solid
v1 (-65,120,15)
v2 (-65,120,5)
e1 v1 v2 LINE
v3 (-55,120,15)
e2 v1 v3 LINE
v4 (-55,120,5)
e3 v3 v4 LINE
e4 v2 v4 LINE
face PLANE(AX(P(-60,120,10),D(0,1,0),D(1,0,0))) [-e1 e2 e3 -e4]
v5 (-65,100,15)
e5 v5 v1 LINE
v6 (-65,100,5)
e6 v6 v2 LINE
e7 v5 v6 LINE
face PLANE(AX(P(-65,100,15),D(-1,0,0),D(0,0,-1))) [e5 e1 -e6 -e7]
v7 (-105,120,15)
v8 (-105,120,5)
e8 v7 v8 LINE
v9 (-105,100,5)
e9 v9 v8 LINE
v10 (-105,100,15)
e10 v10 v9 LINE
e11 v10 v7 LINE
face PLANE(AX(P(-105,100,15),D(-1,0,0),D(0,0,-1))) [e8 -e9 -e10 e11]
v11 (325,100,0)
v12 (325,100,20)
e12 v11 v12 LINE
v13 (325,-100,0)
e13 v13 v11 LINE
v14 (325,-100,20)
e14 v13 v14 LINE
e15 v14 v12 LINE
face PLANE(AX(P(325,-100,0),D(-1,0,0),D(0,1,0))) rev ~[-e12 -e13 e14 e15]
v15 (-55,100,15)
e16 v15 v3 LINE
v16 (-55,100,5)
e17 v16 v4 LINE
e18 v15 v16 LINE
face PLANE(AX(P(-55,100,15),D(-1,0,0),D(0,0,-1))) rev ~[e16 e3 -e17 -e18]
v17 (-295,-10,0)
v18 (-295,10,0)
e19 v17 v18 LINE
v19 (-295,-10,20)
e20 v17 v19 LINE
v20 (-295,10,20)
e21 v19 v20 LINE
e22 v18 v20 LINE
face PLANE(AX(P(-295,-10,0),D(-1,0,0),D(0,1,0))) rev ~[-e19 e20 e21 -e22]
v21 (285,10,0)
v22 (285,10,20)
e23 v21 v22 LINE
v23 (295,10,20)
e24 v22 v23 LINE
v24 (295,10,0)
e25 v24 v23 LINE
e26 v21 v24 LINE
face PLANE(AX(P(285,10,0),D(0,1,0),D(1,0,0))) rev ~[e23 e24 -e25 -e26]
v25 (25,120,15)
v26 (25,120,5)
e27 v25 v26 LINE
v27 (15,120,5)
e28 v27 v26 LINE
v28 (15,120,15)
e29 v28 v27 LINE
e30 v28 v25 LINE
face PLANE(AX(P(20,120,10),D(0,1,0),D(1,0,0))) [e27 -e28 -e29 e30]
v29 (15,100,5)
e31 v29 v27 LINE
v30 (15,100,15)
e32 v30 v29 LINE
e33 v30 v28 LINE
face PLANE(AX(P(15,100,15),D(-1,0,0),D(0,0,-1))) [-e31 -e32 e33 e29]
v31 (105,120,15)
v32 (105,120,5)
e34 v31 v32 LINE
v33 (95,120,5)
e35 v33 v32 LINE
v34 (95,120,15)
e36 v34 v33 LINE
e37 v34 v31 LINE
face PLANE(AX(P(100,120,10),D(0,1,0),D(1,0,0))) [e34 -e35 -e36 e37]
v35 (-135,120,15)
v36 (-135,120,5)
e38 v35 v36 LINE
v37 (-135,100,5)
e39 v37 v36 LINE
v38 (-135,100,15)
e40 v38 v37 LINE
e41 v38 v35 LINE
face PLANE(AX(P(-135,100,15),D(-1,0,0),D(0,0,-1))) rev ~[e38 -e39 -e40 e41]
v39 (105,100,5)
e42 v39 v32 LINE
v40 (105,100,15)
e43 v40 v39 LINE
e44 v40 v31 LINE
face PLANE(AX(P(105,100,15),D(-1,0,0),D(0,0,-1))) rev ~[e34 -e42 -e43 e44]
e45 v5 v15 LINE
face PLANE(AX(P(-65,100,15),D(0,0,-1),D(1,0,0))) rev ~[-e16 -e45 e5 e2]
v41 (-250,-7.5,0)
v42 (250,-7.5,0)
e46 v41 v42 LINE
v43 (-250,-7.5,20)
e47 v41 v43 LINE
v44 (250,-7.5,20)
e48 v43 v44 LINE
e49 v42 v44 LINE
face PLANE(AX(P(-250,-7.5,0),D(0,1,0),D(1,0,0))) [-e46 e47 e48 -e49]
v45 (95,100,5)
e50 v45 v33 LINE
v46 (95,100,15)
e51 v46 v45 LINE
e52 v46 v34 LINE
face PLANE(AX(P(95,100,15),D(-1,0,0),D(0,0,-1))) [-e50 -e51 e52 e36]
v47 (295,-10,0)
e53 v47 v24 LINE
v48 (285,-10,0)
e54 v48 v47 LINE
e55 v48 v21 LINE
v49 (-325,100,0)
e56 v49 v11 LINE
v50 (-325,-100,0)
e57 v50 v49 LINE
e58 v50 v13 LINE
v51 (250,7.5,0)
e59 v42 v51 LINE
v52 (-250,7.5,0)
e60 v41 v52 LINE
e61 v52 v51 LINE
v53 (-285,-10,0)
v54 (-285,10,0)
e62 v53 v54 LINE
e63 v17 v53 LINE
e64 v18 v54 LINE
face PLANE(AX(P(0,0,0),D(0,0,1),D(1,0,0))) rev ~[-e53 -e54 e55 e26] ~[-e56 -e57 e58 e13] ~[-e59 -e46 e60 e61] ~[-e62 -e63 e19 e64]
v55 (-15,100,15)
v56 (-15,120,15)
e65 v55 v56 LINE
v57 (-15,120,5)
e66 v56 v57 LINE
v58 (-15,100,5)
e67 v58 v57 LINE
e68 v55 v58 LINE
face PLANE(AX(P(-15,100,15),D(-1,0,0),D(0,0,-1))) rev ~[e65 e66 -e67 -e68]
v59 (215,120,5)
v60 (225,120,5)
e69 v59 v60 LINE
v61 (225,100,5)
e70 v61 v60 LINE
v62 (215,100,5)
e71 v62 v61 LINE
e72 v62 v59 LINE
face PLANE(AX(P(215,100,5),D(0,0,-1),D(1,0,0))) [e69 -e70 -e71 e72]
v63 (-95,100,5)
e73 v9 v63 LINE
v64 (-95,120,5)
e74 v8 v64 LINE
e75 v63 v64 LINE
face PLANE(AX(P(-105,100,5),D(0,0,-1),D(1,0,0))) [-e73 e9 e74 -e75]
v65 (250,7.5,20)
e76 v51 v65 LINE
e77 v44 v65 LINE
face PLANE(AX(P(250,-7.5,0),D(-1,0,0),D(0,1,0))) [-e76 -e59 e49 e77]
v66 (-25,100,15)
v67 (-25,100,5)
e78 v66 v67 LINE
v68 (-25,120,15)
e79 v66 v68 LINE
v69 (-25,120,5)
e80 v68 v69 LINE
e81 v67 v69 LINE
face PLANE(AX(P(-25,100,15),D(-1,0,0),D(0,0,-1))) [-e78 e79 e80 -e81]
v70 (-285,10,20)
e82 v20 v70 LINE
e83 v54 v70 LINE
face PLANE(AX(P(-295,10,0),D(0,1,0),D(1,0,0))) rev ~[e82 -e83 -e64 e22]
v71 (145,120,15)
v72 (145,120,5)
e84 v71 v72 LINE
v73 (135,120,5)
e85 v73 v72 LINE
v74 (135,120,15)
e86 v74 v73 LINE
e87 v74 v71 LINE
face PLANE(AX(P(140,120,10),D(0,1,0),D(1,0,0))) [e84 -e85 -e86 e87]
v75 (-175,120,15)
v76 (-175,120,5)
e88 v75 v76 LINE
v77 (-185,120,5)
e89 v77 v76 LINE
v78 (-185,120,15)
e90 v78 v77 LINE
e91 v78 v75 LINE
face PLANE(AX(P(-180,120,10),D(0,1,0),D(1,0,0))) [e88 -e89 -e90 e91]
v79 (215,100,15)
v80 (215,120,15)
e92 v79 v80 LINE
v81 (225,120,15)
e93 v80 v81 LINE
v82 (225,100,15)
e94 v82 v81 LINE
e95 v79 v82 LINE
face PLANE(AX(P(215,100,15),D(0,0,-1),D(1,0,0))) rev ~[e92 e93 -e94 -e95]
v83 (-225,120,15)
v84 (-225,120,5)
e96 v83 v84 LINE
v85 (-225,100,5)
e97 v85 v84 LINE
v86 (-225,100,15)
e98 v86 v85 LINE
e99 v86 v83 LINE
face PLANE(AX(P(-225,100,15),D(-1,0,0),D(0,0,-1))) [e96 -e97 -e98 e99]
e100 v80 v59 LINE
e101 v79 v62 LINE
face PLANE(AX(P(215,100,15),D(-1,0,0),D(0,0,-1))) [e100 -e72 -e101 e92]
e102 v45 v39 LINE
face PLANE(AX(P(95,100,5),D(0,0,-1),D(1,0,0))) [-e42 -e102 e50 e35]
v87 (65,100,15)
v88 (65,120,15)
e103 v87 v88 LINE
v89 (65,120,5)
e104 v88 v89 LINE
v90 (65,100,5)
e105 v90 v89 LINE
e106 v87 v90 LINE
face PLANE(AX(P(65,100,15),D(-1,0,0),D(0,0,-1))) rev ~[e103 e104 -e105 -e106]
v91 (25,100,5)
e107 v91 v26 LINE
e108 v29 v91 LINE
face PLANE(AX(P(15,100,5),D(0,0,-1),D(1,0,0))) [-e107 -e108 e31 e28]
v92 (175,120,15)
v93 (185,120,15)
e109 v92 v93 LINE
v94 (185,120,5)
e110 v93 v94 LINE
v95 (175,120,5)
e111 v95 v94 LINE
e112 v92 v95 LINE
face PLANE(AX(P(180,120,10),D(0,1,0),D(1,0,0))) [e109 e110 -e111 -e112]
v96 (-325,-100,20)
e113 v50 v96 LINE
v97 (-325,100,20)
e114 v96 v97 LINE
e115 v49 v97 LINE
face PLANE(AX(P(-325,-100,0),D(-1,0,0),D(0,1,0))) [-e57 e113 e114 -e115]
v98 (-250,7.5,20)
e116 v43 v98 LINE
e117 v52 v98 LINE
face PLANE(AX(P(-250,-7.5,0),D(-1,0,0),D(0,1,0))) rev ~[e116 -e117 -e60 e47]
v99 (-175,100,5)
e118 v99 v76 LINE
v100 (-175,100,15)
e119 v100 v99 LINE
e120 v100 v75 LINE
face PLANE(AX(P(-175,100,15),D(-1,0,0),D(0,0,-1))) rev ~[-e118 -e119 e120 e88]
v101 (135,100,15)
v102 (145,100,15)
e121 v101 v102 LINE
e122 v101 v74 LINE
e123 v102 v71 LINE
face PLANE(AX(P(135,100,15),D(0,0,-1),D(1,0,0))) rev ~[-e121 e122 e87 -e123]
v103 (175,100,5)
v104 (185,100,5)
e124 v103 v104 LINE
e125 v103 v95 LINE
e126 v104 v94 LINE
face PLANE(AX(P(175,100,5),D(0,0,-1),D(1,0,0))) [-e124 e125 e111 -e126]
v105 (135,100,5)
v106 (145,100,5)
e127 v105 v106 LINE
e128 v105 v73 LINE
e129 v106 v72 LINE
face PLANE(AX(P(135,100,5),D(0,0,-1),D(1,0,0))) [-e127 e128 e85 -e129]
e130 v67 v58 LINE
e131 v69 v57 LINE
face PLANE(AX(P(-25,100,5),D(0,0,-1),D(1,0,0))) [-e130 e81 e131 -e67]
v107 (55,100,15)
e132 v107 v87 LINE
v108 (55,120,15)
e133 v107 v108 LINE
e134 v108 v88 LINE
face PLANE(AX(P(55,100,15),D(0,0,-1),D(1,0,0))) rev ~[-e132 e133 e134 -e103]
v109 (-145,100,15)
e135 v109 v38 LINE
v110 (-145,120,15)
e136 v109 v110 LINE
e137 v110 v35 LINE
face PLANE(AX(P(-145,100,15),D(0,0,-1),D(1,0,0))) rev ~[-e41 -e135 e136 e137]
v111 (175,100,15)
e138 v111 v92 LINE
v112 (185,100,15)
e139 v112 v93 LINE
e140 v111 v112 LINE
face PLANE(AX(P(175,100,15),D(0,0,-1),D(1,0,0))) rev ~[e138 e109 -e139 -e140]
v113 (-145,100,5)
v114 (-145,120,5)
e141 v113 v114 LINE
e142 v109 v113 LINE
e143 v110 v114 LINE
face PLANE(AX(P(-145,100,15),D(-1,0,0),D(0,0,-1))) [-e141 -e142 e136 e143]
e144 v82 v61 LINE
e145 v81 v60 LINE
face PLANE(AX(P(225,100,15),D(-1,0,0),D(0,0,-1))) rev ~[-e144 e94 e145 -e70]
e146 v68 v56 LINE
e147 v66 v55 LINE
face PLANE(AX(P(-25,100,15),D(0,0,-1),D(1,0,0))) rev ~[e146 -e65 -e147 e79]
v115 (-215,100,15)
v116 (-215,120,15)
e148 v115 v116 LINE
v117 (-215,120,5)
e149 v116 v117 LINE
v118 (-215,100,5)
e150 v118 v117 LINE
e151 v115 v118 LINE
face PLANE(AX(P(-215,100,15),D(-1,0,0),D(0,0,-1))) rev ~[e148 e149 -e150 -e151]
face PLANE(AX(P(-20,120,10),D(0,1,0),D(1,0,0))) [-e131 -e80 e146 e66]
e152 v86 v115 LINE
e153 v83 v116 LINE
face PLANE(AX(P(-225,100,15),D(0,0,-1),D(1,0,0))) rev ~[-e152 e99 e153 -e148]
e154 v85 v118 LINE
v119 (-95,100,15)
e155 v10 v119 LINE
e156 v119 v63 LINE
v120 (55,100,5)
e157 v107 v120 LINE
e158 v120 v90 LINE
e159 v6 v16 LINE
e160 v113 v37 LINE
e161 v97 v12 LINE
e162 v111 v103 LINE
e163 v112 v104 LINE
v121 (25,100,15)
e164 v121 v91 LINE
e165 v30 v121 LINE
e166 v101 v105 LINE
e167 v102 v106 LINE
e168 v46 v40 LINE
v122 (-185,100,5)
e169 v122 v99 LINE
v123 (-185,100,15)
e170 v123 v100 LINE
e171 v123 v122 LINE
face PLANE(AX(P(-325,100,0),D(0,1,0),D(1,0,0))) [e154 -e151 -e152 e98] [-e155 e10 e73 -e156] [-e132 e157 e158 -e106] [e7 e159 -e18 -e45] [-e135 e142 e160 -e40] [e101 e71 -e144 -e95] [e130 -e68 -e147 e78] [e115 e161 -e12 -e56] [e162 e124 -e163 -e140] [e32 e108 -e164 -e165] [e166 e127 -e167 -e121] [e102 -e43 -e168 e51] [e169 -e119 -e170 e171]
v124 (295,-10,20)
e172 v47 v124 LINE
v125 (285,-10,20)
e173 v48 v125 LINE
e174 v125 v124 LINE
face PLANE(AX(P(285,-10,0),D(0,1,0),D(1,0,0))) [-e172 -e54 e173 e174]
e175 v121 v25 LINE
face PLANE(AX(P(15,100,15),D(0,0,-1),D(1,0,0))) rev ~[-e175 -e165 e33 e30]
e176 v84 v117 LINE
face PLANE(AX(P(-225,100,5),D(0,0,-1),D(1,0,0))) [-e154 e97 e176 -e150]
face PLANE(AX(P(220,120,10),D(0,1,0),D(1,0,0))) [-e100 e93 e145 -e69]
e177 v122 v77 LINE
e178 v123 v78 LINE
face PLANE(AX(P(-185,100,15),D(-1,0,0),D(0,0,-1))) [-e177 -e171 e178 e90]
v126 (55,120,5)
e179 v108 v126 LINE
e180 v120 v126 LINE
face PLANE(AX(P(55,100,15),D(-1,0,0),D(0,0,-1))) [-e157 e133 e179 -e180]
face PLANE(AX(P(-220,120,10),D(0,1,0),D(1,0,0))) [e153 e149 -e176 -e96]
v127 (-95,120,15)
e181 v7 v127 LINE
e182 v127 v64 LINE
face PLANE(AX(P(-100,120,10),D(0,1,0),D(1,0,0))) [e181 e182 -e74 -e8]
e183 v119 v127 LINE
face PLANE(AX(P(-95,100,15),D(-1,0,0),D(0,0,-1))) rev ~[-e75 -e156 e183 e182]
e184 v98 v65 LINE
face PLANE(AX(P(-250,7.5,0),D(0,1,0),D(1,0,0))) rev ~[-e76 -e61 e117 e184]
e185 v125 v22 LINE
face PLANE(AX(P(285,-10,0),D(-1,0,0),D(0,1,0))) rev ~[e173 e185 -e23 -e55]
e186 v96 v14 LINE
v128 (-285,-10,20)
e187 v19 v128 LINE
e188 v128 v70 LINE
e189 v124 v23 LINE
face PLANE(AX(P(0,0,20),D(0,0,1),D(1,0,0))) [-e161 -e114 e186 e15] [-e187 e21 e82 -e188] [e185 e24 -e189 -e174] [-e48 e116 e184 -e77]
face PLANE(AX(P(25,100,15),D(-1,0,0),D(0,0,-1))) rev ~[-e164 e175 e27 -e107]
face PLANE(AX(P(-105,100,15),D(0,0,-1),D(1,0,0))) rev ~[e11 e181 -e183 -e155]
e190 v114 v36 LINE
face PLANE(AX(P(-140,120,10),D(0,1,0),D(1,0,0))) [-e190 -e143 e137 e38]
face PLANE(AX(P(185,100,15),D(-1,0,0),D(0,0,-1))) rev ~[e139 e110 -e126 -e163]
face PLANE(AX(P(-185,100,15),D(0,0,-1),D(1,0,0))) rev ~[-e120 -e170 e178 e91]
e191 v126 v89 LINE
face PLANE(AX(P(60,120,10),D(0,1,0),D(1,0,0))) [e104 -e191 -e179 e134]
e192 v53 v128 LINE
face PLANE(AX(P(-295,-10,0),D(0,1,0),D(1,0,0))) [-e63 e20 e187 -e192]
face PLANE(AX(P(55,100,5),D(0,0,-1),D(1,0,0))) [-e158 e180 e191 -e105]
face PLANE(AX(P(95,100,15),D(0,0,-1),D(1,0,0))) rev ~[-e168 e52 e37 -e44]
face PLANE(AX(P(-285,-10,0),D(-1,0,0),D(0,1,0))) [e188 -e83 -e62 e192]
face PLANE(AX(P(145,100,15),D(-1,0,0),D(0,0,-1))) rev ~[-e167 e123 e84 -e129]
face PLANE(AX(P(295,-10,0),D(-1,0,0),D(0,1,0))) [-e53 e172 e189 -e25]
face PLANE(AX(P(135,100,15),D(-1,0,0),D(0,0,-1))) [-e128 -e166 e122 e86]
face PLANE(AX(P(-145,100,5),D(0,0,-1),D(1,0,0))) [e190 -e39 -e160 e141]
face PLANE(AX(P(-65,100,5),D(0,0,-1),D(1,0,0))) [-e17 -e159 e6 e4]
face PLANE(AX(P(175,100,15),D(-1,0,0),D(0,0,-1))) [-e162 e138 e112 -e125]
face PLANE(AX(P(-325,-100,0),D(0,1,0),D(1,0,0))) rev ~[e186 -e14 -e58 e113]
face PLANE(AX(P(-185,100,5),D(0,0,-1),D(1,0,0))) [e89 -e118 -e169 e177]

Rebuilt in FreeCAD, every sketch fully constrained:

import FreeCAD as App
import Part
import Sketcher

V = App.Vector


def add_polygon(sketch, points):
    """Adds a closed chain of lines whose ends are joined by coincident constraints."""
    first, n = sketch.GeometryCount, len(points)
    for a, b in zip(points, points[1:] + points[:1]):
        sketch.addGeometry(Part.LineSegment(App.Vector(*a, 0), App.Vector(*b, 0)), False)
    for i in range(n):
        sketch.addConstraint(Sketcher.Constraint("Coincident", first + i, 2, first + (i + 1) % n, 1))

doc = App.newDocument("Part")
params = doc.addObject("Spreadsheet::Sheet", "Params")
for row, (alias, value) in enumerate([
    ("sketch1_width", "650 mm"),
    ("sketch1_width2", "10 mm"),
    ("sketch1_width3", "500 mm"),
    ("sketch1_height", "200 mm"),
    ("sketch1_height2", "20 mm"),
    ("pad1_length", "20 mm"),
    ("sketch2_width", "10 mm"),
    ("pad2_length", "20 mm"),
], start=1):
    params.set(f"A{row}", alias)
    params.set(f"B{row}", "=" + value)
    params.setAlias(f"B{row}", alias)

body = doc.addObject("PartDesign::Body", "Body")

# Sketch on XY plane
sketch1 = body.newObject("Sketcher::SketchObject", "Sketch")
sketch1.AttachmentSupport = (doc.getObject("XY_Plane"), [""])
sketch1.MapMode = "FlatFace"
add_polygon(sketch1, [(-325, 100), (-325, -100), (325, -100), (325, 100)])  # lines 0-3
add_polygon(sketch1, [(-285, -10), (-295, -10), (-295, 10), (-285, 10)])  # lines 4-7
add_polygon(sketch1, [(250, -8), (-250, -8), (-250, 8), (250, 8)])  # lines 8-11
add_polygon(sketch1, [(295, -10), (285, -10), (285, 10), (295, 10)])  # lines 12-15
sketch1.addConstraint([
    Sketcher.Constraint("Vertical", 0),
    Sketcher.Constraint("Horizontal", 1),
    Sketcher.Constraint("Vertical", 2),
    Sketcher.Constraint("Horizontal", 3),
    Sketcher.Constraint("Horizontal", 4),
    Sketcher.Constraint("Vertical", 5),
    Sketcher.Constraint("Horizontal", 6),
    Sketcher.Constraint("Vertical", 7),
    Sketcher.Constraint("Horizontal", 8),
    Sketcher.Constraint("Vertical", 9),
    Sketcher.Constraint("Horizontal", 10),
    Sketcher.Constraint("Vertical", 11),
    Sketcher.Constraint("Horizontal", 12),
    Sketcher.Constraint("Vertical", 13),
    Sketcher.Constraint("Horizontal", 14),
    Sketcher.Constraint("Vertical", 15),
    Sketcher.Constraint("Symmetric", 0, 2, 2, 2, -1, 1),
    Sketcher.Constraint("Symmetric", 8, 2, 10, 2, -1, 1),
    Sketcher.Constraint("Symmetric", 6, 2, 12, 2, -1, 1),
    Sketcher.Constraint("Symmetric", 4, 2, 14, 2, -1, 1),
    Sketcher.Constraint("Horizontal", 7, 2, 12, 2),
    Sketcher.Constraint("DistanceX", 1, 1, 1, 2, 650.0),
    Sketcher.Constraint("DistanceX", 4, 2, 4, 1, 10.0),
    Sketcher.Constraint("DistanceX", 8, 2, 8, 1, 500.0),
    Sketcher.Constraint("DistanceY", 0, 2, 0, 1, 200.0),
    Sketcher.Constraint("DistanceY", 5, 1, 5, 2, 20.0),
    Sketcher.Constraint("DistanceY", 9, 1, 9, 2, 15.0),
    Sketcher.Constraint("DistanceX", 4, 2, -1, 1, 295.0),
])
sketch1.setExpression("Constraints[37]", "Params.sketch1_width")
sketch1.setExpression("Constraints[38]", "Params.sketch1_width2")
sketch1.setExpression("Constraints[39]", "Params.sketch1_width3")
sketch1.setExpression("Constraints[40]", "Params.sketch1_height")
sketch1.setExpression("Constraints[41]", "Params.sketch1_height2")
pad1 = body.newObject("PartDesign::Pad", "Pad")
pad1.Profile = sketch1
pad1.setExpression("Length", "Params.pad1_length")

# Sketch on XZ plane
sketch2 = body.newObject("Sketcher::SketchObject", "Sketch001")
sketch2.AttachmentSupport = (doc.getObject("XZ_Plane"), [""])
sketch2.MapMode = "FlatFace"
sketch2.AttachmentOffset = App.Placement(V(0, 0, -100), App.Rotation())
add_polygon(sketch2, [(-185, 5), (-185, 15), (-175, 15), (-175, 5)])  # lines 0-3
add_polygon(sketch2, [(-225, 5), (-225, 15), (-215, 15), (-215, 5)])  # lines 4-7
add_polygon(sketch2, [(-145, 5), (-145, 15), (-135, 15), (-135, 5)])  # lines 8-11
add_polygon(sketch2, [(-105, 5), (-105, 15), (-95, 15), (-95, 5)])  # lines 12-15
add_polygon(sketch2, [(-65, 5), (-65, 15), (-55, 15), (-55, 5)])  # lines 16-19
add_polygon(sketch2, [(-25, 5), (-25, 15), (-15, 15), (-15, 5)])  # lines 20-23
add_polygon(sketch2, [(15, 5), (15, 15), (25, 15), (25, 5)])  # lines 24-27
add_polygon(sketch2, [(55, 5), (55, 15), (65, 15), (65, 5)])  # lines 28-31
add_polygon(sketch2, [(95, 5), (95, 15), (105, 15), (105, 5)])  # lines 32-35
add_polygon(sketch2, [(135, 5), (135, 15), (145, 15), (145, 5)])  # lines 36-39
add_polygon(sketch2, [(175, 5), (175, 15), (185, 15), (185, 5)])  # lines 40-43
add_polygon(sketch2, [(215, 5), (215, 15), (225, 15), (225, 5)])  # lines 44-47
sketch2.addConstraint([
    Sketcher.Constraint("Vertical", 0),
    Sketcher.Constraint("Horizontal", 1),
    Sketcher.Constraint("Vertical", 2),
    Sketcher.Constraint("Horizontal", 3),
    Sketcher.Constraint("Vertical", 4),
    Sketcher.Constraint("Horizontal", 5),
    Sketcher.Constraint("Vertical", 6),
    Sketcher.Constraint("Horizontal", 7),
    Sketcher.Constraint("Vertical", 8),
    Sketcher.Constraint("Horizontal", 9),
    Sketcher.Constraint("Vertical", 10),
    Sketcher.Constraint("Horizontal", 11),
    Sketcher.Constraint("Vertical", 12),
    Sketcher.Constraint("Horizontal", 13),
    Sketcher.Constraint("Vertical", 14),
    Sketcher.Constraint("Horizontal", 15),
    Sketcher.Constraint("Vertical", 16),
    Sketcher.Constraint("Horizontal", 17),
    Sketcher.Constraint("Vertical", 18),
    Sketcher.Constraint("Horizontal", 19),
    Sketcher.Constraint("Vertical", 20),
    Sketcher.Constraint("Horizontal", 21),
    Sketcher.Constraint("Vertical", 22),
    Sketcher.Constraint("Horizontal", 23),
    Sketcher.Constraint("Vertical", 24),
    Sketcher.Constraint("Horizontal", 25),
    Sketcher.Constraint("Vertical", 26),
    Sketcher.Constraint("Horizontal", 27),
    Sketcher.Constraint("Vertical", 28),
    Sketcher.Constraint("Horizontal", 29),
    Sketcher.Constraint("Vertical", 30),
    Sketcher.Constraint("Horizontal", 31),
    Sketcher.Constraint("Vertical", 32),
    Sketcher.Constraint("Horizontal", 33),
    Sketcher.Constraint("Vertical", 34),
    Sketcher.Constraint("Horizontal", 35),
    Sketcher.Constraint("Vertical", 36),
    Sketcher.Constraint("Horizontal", 37),
    Sketcher.Constraint("Vertical", 38),
    Sketcher.Constraint("Horizontal", 39),
    Sketcher.Constraint("Vertical", 40),
    Sketcher.Constraint("Horizontal", 41),
    Sketcher.Constraint("Vertical", 42),
    Sketcher.Constraint("Horizontal", 43),
    Sketcher.Constraint("Vertical", 44),
    Sketcher.Constraint("Horizontal", 45),
    Sketcher.Constraint("Vertical", 46),
    Sketcher.Constraint("Horizontal", 47),
    Sketcher.Constraint("Symmetric", 21, 2, 24, 2, -2),
    Sketcher.Constraint("Symmetric", 23, 2, 26, 2, -2),
    Sketcher.Constraint("Symmetric", 17, 2, 28, 2, -2),
    Sketcher.Constraint("Symmetric", 19, 2, 30, 2, -2),
    Sketcher.Constraint("Symmetric", 13, 2, 32, 2, -2),
    Sketcher.Constraint("Symmetric", 15, 2, 34, 2, -2),
    Sketcher.Constraint("Symmetric", 9, 2, 36, 2, -2),
    Sketcher.Constraint("Symmetric", 11, 2, 38, 2, -2),
    Sketcher.Constraint("Symmetric", 1, 2, 40, 2, -2),
    Sketcher.Constraint("Symmetric", 3, 2, 42, 2, -2),
    Sketcher.Constraint("Symmetric", 5, 2, 44, 2, -2),
    Sketcher.Constraint("Symmetric", 7, 2, 46, 2, -2),
    Sketcher.Constraint("Horizontal", 1, 2, 4, 2),
    Sketcher.Constraint("Horizontal", 3, 2, 6, 2),
    Sketcher.Constraint("Horizontal", 5, 2, 8, 2),
    Sketcher.Constraint("Horizontal", 7, 2, 10, 2),
    Sketcher.Constraint("Horizontal", 9, 2, 12, 2),
    Sketcher.Constraint("Horizontal", 11, 2, 14, 2),
    Sketcher.Constraint("Horizontal", 13, 2, 16, 2),
    Sketcher.Constraint("Horizontal", 15, 2, 18, 2),
    Sketcher.Constraint("Horizontal", 17, 2, 20, 2),
    Sketcher.Constraint("Horizontal", 19, 2, 22, 2),
    Sketcher.Constraint("Equal", 3, 5),
    Sketcher.Constraint("Equal", 7, 9),
    Sketcher.Constraint("Equal", 11, 13),
    Sketcher.Constraint("Equal", 15, 17),
    Sketcher.Constraint("Equal", 19, 21),
    Sketcher.Constraint("Equal", 47, 0),
    Sketcher.Constraint("DistanceX", 1, 1, 1, 2, 10.0),
    Sketcher.Constraint("DistanceX", 0, 2, -1, 1, 185.0),
    Sketcher.Constraint("DistanceY", -1, 1, 0, 2, 15.0),
    Sketcher.Constraint("DistanceX", 4, 2, -1, 1, 225.0),
    Sketcher.Constraint("DistanceX", 8, 2, -1, 1, 145.0),
    Sketcher.Constraint("DistanceX", 12, 2, -1, 1, 105.0),
    Sketcher.Constraint("DistanceX", 16, 2, -1, 1, 65.0),
    Sketcher.Constraint("DistanceX", 20, 2, -1, 1, 25.0),
])
sketch2.setExpression("Constraints[124]", "Params.sketch2_width")
pad2 = body.newObject("PartDesign::Pad", "Pad001")
pad2.Profile = sketch2
pad2.setExpression("Length", "Params.pad2_length")
pad2.Reversed = True

doc.recompute()
